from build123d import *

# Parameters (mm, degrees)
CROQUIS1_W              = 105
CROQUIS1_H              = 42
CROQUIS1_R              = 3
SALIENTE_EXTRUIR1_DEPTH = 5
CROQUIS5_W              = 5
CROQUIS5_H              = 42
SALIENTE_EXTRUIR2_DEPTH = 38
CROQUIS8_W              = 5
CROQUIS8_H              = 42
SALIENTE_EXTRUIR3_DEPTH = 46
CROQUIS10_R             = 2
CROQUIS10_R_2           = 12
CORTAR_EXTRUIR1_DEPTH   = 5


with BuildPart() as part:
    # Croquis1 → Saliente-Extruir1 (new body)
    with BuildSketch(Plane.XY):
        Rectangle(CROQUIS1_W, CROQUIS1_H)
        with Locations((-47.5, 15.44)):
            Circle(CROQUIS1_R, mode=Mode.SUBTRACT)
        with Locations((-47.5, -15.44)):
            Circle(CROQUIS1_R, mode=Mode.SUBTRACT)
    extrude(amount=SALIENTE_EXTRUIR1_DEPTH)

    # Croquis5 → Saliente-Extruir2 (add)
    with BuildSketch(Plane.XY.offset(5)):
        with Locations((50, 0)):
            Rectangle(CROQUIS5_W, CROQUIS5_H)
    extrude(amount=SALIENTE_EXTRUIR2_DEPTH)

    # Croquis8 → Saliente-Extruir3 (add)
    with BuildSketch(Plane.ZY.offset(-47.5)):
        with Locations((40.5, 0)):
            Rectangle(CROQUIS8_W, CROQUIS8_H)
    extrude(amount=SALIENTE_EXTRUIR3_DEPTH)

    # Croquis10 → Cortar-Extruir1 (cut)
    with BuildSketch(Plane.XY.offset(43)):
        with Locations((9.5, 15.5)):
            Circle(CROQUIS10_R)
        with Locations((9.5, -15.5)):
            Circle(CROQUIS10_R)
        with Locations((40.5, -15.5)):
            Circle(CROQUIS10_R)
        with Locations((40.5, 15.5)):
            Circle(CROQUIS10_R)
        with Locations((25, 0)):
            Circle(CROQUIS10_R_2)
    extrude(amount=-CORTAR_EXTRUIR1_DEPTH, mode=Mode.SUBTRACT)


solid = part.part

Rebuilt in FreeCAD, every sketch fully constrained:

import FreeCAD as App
import Part
import Sketcher

V = App.Vector

doc = App.newDocument("Part")
body = doc.addObject("PartDesign::Body", "Body")

sketch1 = doc.addObject("Sketcher::SketchObject", "Sketch")
body.addObject(sketch1)
sketch1.AttachmentSupport = (doc.XY_Plane, [""])
sketch1.MapMode = "FlatFace"
sketch1.addGeometry(Part.LineSegment(V(-52.5, 21, 0), V(-52.5, -21, 0)), False)
sketch1.addGeometry(Part.LineSegment(V(-52.5, -21, 0), V(52.5, -21, 0)), False)
sketch1.addGeometry(Part.LineSegment(V(52.5, -21, 0), V(52.5, 21, 0)), False)
sketch1.addGeometry(Part.LineSegment(V(52.5, 21, 0), V(-52.5, 21, 0)), False)
sketch1.addGeometry(Part.Circle(V(-47.5, -15.44, 0), V(0, 0, 1), 3), False)
sketch1.addGeometry(Part.Circle(V(-47.5, 15.44, 0), V(0, 0, 1), 3), False)
sketch1.addConstraint(Sketcher.Constraint("Coincident", 0, 2, 1, 1))
sketch1.addConstraint(Sketcher.Constraint("Coincident", 1, 2, 2, 1))
sketch1.addConstraint(Sketcher.Constraint("Coincident", 2, 2, 3, 1))
sketch1.addConstraint(Sketcher.Constraint("Coincident", 3, 2, 0, 1))
sketch1.addConstraint(Sketcher.Constraint("Vertical", 0))
sketch1.addConstraint(Sketcher.Constraint("Horizontal", 1))
sketch1.addConstraint(Sketcher.Constraint("Vertical", 2))
sketch1.addConstraint(Sketcher.Constraint("Horizontal", 3))
sketch1.addConstraint(Sketcher.Constraint("Equal", 4, 5))
sketch1.addConstraint(Sketcher.Constraint("Symmetric", 0, 2, 2, 2, -1, 1))
sketch1.addConstraint(Sketcher.Constraint("Symmetric", 4, 3, 5, 3, -1))
sketch1.addConstraint(Sketcher.Constraint("Diameter", 4, 6.0))
sketch1.addConstraint(Sketcher.Constraint("DistanceX", 1, 1, 1, 2, 105.0))
sketch1.addConstraint(Sketcher.Constraint("DistanceY", 0, 2, 0, 1, 42.0))
sketch1.addConstraint(Sketcher.Constraint("DistanceX", 0, 2, 4, 3, 5.0))
sketch1.addConstraint(Sketcher.Constraint("DistanceY", 4, 3, -1, 1, 15.44))
pad1 = doc.addObject("PartDesign::Pad", "Pad")
body.addObject(pad1)
pad1.Profile = sketch1
pad1.Length = 5

sketch2 = doc.addObject("Sketcher::SketchObject", "Sketch001")
body.addObject(sketch2)
sketch2.AttachmentSupport = (doc.XY_Plane, [""])
sketch2.MapMode = "FlatFace"
sketch2.AttachmentOffset = App.Placement(V(0, 0, 5), App.Rotation())
sketch2.addGeometry(Part.LineSegment(V(47.5, 21, 0), V(47.5, -21, 0)), False)
sketch2.addGeometry(Part.LineSegment(V(47.5, -21, 0), V(52.5, -21, 0)), False)
sketch2.addGeometry(Part.LineSegment(V(52.5, -21, 0), V(52.5, 21, 0)), False)
sketch2.addGeometry(Part.LineSegment(V(52.5, 21, 0), V(47.5, 21, 0)), False)
sketch2.addConstraint(Sketcher.Constraint("Coincident", 0, 2, 1, 1))
sketch2.addConstraint(Sketcher.Constraint("Coincident", 1, 2, 2, 1))
sketch2.addConstraint(Sketcher.Constraint("Coincident", 2, 2, 3, 1))
sketch2.addConstraint(Sketcher.Constraint("Coincident", 3, 2, 0, 1))
sketch2.addConstraint(Sketcher.Constraint("Vertical", 0))
sketch2.addConstraint(Sketcher.Constraint("Horizontal", 1))
sketch2.addConstraint(Sketcher.Constraint("Vertical", 2))
sketch2.addConstraint(Sketcher.Constraint("Horizontal", 3))
sketch2.addConstraint(Sketcher.Constraint("DistanceX", 1, 1, 1, 2, 5.0))
sketch2.addConstraint(Sketcher.Constraint("DistanceY", 0, 2, 0, 1, 42.0))
sketch2.addConstraint(Sketcher.Constraint("DistanceY", 0, 2, -1, 1, 21.0))
sketch2.addConstraint(Sketcher.Constraint("DistanceX", -1, 1, 0, 2, 47.5))
pad2 = doc.addObject("PartDesign::Pad", "Pad001")
body.addObject(pad2)
pad2.Profile = sketch2
pad2.Length = 38

sketch3 = doc.addObject("Sketcher::SketchObject", "Sketch002")
body.addObject(sketch3)
sketch3.AttachmentSupport = (doc.YZ_Plane, [""])
sketch3.MapMode = "FlatFace"
sketch3.AttachmentOffset = App.Placement(V(0, 0, 47.5), App.Rotation())
sketch3.addGeometry(Part.LineSegment(V(21, 38, 0), V(-21, 38, 0)), False)
sketch3.addGeometry(Part.LineSegment(V(-21, 38, 0), V(-21, 43, 0)), False)
sketch3.addGeometry(Part.LineSegment(V(-21, 43, 0), V(21, 43, 0)), False)
sketch3.addGeometry(Part.LineSegment(V(21, 43, 0), V(21, 38, 0)), False)
sketch3.addConstraint(Sketcher.Constraint("Coincident", 0, 2, 1, 1))
sketch3.addConstraint(Sketcher.Constraint("Coincident", 1, 2, 2, 1))
sketch3.addConstraint(Sketcher.Constraint("Coincident", 2, 2, 3, 1))
sketch3.addConstraint(Sketcher.Constraint("Coincident", 3, 2, 0, 1))
sketch3.addConstraint(Sketcher.Constraint("Horizontal", 0))
sketch3.addConstraint(Sketcher.Constraint("Vertical", 1))
sketch3.addConstraint(Sketcher.Constraint("Horizontal", 2))
sketch3.addConstraint(Sketcher.Constraint("Vertical", 3))
sketch3.addConstraint(Sketcher.Constraint("DistanceX", 0, 2, 0, 1, 42.0))
sketch3.addConstraint(Sketcher.Constraint("DistanceY", 1, 1, 1, 2, 5.0))
sketch3.addConstraint(Sketcher.Constraint("DistanceX", 0, 2, -1, 1, 21.0))
sketch3.addConstraint(Sketcher.Constraint("DistanceY", -1, 1, 0, 2, 38.0))
pad3 = doc.addObject("PartDesign::Pad", "Pad002")
body.addObject(pad3)
pad3.Profile = sketch3
pad3.Length = 46
pad3.Reversed = True

sketch4 = doc.addObject("Sketcher::SketchObject", "Sketch003")
body.addObject(sketch4)
sketch4.AttachmentSupport = (doc.XY_Plane, [""])
sketch4.MapMode = "FlatFace"
sketch4.AttachmentOffset = App.Placement(V(0, 0, 43), App.Rotation())
sketch4.addGeometry(Part.Circle(V(9.5, 15.5, 0), V(0, 0, 1), 2), False)
sketch4.addGeometry(Part.Circle(V(9.5, -15.5, 0), V(0, 0, 1), 2), False)
sketch4.addGeometry(Part.Circle(V(40.5, -15.5, 0), V(0, 0, 1), 2), False)
sketch4.addGeometry(Part.Circle(V(40.5, 15.5, 0), V(0, 0, 1), 2), False)
sketch4.addGeometry(Part.Circle(V(25, 0, 0), V(0, 0, 1), 12), False)
sketch4.addConstraint(Sketcher.Constraint("Equal", 0, 1))
sketch4.addConstraint(Sketcher.Constraint("Equal", 1, 2))
sketch4.addConstraint(Sketcher.Constraint("Equal", 2, 3))
sketch4.addConstraint(Sketcher.Constraint("Symmetric", 0, 3, 1, 3, -1))
sketch4.addConstraint(Sketcher.Constraint("Symmetric", 2, 3, 3, 3, -1))
sketch4.addConstraint(Sketcher.Constraint("PointOnObject", 4, 3, -1))
sketch4.addConstraint(Sketcher.Constraint("Horizontal", 1, 3, 2, 3))
sketch4.addConstraint(Sketcher.Constraint("Diameter", 0, 4.0))
sketch4.addConstraint(Sketcher.Constraint("Diameter", 4, 24.0))
sketch4.addConstraint(Sketcher.Constraint("DistanceX", -1, 1, 4, 3, 25.0))
sketch4.addConstraint(Sketcher.Constraint("DistanceY", 1, 3, 0, 3, 31.0))
sketch4.addConstraint(Sketcher.Constraint("DistanceX", 1, 3, 2, 3, 31.0))
sketch4.addConstraint(Sketcher.Constraint("DistanceX", -1, 1, 0, 3, 9.5))
pocket1 = doc.addObject("PartDesign::Pocket", "Pocket")
body.addObject(pocket1)
pocket1.Profile = sketch4
pocket1.Length = 5

doc.recompute()
